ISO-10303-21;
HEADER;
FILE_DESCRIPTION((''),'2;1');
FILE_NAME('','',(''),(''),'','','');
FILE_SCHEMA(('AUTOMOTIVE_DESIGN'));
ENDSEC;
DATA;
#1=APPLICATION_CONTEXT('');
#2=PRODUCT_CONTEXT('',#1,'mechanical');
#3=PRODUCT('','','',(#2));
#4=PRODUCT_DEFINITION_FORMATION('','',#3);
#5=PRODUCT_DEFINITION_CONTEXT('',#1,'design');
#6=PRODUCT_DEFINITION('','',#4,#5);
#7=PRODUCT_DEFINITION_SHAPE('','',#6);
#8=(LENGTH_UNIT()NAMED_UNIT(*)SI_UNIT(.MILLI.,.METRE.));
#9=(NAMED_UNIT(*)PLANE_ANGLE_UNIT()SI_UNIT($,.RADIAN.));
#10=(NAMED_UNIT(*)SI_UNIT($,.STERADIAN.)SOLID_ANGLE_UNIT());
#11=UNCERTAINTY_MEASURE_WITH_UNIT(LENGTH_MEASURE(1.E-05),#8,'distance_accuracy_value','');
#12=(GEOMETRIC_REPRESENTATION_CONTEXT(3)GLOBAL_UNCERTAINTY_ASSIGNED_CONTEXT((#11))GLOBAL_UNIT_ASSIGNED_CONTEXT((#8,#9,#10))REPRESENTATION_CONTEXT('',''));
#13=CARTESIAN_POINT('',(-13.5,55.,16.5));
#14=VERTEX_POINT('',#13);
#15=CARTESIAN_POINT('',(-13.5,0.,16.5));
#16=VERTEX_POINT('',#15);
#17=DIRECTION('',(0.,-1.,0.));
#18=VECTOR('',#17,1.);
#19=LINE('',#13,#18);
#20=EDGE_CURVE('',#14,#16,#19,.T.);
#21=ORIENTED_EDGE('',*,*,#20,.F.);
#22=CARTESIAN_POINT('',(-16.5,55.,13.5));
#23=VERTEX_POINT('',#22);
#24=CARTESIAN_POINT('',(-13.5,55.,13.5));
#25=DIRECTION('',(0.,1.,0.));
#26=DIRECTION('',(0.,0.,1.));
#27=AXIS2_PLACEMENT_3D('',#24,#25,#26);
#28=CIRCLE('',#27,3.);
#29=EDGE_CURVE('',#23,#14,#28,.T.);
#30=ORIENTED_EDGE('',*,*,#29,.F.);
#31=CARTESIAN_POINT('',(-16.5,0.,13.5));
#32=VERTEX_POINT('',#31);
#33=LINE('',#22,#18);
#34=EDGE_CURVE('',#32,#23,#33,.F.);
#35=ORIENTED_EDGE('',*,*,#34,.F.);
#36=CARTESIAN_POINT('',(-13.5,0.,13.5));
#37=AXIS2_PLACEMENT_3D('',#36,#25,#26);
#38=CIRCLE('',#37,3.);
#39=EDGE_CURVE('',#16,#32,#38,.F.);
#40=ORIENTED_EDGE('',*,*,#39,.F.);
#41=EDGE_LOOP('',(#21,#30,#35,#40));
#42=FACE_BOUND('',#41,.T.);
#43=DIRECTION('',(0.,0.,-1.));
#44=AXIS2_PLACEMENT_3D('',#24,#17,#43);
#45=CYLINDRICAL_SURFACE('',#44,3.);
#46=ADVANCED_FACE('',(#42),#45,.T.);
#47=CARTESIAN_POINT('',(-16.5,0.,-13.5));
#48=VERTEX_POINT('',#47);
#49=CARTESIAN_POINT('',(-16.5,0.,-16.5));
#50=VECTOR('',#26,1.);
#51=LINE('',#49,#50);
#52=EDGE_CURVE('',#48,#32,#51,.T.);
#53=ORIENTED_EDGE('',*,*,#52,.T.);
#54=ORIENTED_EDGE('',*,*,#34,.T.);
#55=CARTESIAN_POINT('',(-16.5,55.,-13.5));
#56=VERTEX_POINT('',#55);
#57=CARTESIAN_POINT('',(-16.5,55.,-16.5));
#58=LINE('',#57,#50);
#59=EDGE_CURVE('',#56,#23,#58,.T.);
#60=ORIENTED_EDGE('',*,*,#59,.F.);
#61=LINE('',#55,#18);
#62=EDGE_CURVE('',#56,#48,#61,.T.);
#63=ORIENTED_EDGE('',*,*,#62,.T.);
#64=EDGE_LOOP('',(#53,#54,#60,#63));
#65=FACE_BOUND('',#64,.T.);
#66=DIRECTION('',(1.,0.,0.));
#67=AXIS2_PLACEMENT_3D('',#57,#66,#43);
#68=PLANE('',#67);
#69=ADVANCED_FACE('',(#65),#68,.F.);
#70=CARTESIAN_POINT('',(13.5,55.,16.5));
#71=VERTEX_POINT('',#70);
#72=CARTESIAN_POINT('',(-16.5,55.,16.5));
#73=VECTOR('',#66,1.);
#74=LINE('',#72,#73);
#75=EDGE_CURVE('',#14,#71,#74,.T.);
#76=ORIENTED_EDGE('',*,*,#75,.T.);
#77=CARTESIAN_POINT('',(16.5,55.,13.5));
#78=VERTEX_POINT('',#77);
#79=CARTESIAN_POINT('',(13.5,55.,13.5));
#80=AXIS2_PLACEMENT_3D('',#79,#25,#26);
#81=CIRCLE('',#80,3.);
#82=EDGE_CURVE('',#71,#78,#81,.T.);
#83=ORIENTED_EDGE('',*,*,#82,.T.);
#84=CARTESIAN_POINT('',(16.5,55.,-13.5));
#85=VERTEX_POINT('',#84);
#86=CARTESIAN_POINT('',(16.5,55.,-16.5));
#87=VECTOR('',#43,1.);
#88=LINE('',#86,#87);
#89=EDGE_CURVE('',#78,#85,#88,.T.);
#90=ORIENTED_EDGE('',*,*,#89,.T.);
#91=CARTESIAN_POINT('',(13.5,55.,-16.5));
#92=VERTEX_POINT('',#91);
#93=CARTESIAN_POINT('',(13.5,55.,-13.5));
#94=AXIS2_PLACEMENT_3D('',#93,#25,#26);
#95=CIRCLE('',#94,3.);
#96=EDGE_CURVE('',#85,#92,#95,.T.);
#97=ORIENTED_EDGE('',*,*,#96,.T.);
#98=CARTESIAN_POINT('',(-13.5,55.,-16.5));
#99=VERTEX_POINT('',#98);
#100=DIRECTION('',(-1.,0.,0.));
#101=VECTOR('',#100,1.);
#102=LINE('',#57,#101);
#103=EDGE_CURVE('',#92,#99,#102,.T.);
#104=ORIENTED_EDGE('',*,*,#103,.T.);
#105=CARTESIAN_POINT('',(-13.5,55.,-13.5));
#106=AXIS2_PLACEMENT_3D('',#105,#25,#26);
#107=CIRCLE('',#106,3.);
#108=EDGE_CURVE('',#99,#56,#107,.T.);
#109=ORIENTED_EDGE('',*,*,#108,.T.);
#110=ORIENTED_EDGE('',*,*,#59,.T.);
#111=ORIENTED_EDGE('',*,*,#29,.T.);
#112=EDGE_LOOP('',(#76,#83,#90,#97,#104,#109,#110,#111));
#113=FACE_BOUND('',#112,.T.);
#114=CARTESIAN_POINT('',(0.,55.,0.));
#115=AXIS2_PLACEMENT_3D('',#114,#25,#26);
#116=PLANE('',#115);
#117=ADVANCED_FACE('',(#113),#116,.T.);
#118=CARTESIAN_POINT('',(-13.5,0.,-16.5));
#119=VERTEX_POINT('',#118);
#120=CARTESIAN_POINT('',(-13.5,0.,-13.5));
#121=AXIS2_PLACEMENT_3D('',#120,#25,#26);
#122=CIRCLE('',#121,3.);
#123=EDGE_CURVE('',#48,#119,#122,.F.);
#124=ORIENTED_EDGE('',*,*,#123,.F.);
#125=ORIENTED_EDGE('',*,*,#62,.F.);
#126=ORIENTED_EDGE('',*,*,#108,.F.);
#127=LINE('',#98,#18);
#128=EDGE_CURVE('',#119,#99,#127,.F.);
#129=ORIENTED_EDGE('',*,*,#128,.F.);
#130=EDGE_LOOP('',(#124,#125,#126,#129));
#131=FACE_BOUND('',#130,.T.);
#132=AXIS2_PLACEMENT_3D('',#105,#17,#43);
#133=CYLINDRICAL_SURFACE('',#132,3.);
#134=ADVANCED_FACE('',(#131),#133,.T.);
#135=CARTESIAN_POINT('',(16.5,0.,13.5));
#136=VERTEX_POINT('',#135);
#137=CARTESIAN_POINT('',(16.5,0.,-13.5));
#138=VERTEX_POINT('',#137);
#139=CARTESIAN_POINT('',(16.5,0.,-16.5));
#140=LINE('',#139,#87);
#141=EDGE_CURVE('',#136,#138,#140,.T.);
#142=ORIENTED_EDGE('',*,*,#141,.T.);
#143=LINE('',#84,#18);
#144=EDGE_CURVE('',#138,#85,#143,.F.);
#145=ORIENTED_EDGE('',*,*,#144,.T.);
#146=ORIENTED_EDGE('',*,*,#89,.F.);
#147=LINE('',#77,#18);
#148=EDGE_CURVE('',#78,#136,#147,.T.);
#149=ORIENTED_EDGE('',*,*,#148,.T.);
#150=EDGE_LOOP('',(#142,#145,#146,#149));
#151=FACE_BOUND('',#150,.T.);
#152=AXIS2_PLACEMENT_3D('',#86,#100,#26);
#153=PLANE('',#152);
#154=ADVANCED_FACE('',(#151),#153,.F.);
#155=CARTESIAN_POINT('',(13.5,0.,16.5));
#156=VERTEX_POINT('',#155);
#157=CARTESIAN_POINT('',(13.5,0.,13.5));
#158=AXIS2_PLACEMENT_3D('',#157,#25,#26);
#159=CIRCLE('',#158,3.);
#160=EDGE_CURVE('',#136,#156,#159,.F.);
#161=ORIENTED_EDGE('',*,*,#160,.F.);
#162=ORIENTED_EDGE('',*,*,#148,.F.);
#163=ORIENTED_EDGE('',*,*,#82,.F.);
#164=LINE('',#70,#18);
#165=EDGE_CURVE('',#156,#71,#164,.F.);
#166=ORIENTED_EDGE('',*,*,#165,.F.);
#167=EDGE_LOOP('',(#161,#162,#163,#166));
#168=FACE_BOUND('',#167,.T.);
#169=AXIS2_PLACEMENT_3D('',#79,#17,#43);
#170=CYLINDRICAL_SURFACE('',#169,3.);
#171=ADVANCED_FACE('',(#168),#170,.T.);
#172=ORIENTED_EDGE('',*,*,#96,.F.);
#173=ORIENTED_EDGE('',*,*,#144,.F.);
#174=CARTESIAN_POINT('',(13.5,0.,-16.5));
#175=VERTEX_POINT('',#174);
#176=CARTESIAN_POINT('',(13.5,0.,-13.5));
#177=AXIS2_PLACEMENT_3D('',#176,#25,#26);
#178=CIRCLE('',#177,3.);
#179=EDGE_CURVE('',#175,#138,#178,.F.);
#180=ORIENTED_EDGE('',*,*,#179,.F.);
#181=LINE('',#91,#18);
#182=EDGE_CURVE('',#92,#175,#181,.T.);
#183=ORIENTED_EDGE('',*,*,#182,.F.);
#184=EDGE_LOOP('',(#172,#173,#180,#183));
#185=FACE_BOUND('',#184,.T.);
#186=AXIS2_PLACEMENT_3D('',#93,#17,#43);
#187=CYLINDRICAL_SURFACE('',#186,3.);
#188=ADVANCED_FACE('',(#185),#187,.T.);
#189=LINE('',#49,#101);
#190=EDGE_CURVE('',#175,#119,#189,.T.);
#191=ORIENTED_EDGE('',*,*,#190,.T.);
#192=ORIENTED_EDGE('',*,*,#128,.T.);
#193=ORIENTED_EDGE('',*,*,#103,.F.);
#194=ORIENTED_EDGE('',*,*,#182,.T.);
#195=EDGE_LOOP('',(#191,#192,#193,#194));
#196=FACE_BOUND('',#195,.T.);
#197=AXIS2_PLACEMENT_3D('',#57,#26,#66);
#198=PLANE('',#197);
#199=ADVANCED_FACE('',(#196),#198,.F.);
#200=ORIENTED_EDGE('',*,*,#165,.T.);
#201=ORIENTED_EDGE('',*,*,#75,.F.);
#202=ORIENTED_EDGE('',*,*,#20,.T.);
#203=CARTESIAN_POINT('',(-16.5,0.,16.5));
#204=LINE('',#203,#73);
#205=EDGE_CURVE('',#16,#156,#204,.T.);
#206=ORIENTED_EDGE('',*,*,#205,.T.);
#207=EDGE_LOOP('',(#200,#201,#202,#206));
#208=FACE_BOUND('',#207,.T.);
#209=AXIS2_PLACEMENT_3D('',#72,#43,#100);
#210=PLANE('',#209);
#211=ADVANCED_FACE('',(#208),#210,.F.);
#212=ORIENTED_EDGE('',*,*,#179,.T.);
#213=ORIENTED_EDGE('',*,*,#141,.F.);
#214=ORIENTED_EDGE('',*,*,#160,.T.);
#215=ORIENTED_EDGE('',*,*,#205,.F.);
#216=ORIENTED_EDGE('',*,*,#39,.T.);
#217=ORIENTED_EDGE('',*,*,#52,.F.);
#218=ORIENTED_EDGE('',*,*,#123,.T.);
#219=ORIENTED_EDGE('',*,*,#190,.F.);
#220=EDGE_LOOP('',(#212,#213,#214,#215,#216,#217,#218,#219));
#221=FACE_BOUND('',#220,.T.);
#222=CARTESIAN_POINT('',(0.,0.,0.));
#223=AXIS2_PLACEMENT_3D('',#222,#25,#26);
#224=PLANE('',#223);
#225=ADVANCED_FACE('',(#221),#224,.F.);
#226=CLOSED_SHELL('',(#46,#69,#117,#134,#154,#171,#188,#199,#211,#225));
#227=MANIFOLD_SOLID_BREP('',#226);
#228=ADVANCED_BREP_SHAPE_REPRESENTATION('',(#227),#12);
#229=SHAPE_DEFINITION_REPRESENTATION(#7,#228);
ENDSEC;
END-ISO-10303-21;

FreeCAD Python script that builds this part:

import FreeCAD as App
import Part
import Sketcher
from FreeCAD import Vector
Q = App.Units.Quantity


def edges_at(feature, points):
    """Names of the edges that pass closest to the given points."""
    edges = feature.Shape.Edges
    near = lambda p: min(range(len(edges)), key=lambda i: edges[i].distToShape(Part.Vertex(*p))[0])
    return sorted({f"Edge{near(p) + 1}" for p in points})


def add_polygon(sketch, points):
    """Adds a closed chain of lines whose ends are joined by coincident constraints."""
    first, n = sketch.GeometryCount, len(points)
    for a, b in zip(points, points[1:] + points[:1]):
        sketch.addGeometry(Part.LineSegment(App.Vector(*a, 0), App.Vector(*b, 0)), False)
    for i in range(n):
        sketch.addConstraint(Sketcher.Constraint("Coincident", first + i, 2, first + (i + 1) % n, 1))

doc = App.newDocument("Part")
body = doc.addObject("PartDesign::Body", "Body")

sketch1 = body.newObject("Sketcher::SketchObject", "Sketch")
sketch1.AttachmentSupport = (doc.getObject("XZ_Plane"), [""])
sketch1.MapMode = "FlatFace"
add_polygon(sketch1, [(-16.5, -16.5), (-16.5, 16.5), (16.5, 16.5), (16.5, -16.5)])
sketch1.addConstraint(Sketcher.Constraint("Vertical", 0))
sketch1.addConstraint(Sketcher.Constraint("Horizontal", 1))
sketch1.addConstraint(Sketcher.Constraint("Vertical", 2))
sketch1.addConstraint(Sketcher.Constraint("Horizontal", 3))
sketch1.addConstraint(Sketcher.Constraint("Symmetric", 0, 2, 2, 2, -1, 1))
sketch1.addConstraint(Sketcher.Constraint("Equal", 3, 0))
sketch1.addConstraint(Sketcher.Constraint("DistanceX", 1, 1, 1, 2, Q("33 mm")))
pad1 = body.newObject("PartDesign::Pad", "Pad")
pad1.Profile = sketch1
pad1.Length = 55
pad1.Reversed = True
doc.recompute()

fillet = body.newObject("PartDesign::Fillet", "Fillet")
fillet.Base = (pad1, edges_at(pad1, [
    (16.5, 27.5, 16.5),
    (-16.5, 27.5, 16.5),
    (-16.5, 27.5, -16.5),
    (16.5, 27.5, -16.5),
]))
fillet.Radius = 3

doc.recompute()
